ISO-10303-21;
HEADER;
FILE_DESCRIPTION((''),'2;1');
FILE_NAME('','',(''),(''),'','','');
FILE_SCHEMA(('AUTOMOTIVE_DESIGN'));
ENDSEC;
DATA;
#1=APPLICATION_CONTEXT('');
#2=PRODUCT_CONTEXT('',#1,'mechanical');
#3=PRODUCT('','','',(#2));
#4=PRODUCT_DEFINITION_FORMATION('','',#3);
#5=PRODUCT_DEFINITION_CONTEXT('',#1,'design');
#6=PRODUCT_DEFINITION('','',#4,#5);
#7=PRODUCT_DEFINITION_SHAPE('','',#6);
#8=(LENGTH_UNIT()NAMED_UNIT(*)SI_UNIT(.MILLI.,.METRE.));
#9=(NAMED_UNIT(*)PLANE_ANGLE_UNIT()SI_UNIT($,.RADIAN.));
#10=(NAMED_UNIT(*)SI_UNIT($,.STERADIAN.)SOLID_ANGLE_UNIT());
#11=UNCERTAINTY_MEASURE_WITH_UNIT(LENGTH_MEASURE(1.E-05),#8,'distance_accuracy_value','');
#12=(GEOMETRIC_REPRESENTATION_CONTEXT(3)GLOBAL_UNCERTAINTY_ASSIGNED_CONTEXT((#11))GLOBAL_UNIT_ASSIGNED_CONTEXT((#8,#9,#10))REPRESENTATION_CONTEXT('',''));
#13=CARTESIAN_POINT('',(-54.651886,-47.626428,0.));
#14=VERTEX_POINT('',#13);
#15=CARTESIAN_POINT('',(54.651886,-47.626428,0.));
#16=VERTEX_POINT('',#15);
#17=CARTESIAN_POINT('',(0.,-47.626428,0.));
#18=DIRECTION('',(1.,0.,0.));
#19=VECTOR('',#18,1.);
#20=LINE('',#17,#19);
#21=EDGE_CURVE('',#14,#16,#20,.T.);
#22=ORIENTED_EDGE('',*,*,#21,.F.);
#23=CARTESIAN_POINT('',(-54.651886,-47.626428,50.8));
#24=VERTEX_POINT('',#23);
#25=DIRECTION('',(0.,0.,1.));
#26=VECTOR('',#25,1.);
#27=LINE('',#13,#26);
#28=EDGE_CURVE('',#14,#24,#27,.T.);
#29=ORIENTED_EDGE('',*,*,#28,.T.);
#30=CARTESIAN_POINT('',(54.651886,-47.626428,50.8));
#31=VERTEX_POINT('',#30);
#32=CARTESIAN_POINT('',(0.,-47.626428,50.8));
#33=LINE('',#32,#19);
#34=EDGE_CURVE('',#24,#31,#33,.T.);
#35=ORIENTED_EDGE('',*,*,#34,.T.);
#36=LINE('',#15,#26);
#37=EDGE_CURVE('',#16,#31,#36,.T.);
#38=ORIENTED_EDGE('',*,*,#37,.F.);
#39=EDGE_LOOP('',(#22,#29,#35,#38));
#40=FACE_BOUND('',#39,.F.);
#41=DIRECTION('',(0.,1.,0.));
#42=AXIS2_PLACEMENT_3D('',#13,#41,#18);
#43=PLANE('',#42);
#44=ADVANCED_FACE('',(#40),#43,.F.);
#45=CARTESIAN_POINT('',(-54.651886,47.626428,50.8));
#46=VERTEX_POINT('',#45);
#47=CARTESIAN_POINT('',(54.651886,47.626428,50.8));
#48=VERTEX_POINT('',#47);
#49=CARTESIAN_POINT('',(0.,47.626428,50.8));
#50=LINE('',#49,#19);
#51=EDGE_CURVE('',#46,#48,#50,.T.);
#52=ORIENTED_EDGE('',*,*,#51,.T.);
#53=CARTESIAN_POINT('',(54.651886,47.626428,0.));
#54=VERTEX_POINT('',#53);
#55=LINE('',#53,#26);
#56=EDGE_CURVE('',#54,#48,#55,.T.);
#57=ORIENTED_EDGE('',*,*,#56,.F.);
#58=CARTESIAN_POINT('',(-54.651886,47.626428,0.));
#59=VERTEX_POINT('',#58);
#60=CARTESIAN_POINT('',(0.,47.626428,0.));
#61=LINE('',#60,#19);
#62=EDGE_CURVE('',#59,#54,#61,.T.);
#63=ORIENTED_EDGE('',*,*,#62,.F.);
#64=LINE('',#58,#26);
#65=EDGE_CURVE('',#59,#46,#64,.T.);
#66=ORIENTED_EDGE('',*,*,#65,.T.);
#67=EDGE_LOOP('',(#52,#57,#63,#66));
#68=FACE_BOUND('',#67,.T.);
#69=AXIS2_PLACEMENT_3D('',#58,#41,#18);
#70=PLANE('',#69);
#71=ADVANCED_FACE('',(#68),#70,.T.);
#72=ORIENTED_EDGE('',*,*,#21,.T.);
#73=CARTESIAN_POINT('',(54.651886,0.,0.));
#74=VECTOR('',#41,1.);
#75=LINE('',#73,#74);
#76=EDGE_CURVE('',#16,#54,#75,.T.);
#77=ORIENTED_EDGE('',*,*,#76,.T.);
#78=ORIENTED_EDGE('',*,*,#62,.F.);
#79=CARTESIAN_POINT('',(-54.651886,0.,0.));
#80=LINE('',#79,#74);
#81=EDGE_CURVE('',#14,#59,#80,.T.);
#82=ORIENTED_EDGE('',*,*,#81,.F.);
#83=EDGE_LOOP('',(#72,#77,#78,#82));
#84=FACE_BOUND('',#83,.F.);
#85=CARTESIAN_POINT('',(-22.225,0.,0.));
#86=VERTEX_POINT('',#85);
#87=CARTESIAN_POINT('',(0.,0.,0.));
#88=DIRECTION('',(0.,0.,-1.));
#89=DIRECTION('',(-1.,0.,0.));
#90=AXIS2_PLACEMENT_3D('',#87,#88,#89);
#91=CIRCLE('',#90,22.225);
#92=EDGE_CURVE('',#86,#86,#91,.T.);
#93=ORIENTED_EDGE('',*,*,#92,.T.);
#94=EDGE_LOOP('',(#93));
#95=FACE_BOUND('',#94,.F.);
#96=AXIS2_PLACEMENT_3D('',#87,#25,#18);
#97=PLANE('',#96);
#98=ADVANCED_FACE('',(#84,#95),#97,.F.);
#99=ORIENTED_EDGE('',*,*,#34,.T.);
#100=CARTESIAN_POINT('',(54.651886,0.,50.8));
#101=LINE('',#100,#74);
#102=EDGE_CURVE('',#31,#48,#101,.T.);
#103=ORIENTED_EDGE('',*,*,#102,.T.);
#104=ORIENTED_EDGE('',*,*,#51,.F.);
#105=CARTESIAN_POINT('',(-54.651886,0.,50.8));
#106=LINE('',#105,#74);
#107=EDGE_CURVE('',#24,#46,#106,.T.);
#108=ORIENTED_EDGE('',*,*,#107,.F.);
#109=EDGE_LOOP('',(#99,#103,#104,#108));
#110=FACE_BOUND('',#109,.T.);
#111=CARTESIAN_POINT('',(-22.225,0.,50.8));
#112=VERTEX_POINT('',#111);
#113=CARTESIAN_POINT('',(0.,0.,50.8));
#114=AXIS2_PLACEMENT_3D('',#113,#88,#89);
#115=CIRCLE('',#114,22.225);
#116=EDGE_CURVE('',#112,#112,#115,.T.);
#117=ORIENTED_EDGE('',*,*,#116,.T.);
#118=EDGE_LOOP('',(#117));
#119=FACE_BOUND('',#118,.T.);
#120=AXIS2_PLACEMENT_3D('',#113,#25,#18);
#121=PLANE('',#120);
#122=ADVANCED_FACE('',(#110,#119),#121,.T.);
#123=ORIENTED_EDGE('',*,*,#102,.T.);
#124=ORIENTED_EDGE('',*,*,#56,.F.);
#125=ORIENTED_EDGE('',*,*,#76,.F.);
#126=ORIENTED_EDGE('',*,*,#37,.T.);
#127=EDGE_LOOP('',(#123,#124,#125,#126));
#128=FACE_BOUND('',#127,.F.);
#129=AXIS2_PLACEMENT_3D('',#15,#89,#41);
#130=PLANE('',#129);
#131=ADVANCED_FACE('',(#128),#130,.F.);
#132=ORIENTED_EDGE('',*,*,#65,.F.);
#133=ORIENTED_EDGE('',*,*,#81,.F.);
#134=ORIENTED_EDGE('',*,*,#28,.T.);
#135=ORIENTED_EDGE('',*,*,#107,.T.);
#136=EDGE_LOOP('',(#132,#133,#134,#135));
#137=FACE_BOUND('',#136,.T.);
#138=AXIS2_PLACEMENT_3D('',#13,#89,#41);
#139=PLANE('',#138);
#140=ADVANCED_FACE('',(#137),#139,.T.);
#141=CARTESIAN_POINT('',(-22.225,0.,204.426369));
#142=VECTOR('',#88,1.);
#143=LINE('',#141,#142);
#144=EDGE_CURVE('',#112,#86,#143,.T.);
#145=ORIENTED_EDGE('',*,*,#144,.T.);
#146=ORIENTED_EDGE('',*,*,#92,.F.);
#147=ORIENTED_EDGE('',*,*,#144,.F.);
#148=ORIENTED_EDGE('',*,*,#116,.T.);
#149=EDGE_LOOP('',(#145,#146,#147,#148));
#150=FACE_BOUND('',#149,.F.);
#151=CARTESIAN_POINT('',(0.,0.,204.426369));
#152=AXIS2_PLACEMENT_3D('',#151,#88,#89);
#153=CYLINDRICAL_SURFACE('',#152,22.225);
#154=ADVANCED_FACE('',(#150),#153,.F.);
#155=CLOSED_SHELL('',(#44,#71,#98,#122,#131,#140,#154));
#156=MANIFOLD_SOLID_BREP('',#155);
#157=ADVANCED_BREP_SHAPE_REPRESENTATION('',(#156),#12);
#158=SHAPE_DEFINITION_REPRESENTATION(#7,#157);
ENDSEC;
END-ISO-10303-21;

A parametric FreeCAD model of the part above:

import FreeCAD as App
import Part
import Sketcher
Q = App.Units.Quantity


def add_polygon(sketch, points):
    """Adds a closed chain of lines whose ends are joined by coincident constraints."""
    first, n = sketch.GeometryCount, len(points)
    for a, b in zip(points, points[1:] + points[:1]):
        sketch.addGeometry(Part.LineSegment(App.Vector(*a, 0), App.Vector(*b, 0)), False)
    for i in range(n):
        sketch.addConstraint(Sketcher.Constraint("Coincident", first + i, 2, first + (i + 1) % n, 1))

doc = App.newDocument("Part")
body = doc.addObject("PartDesign::Body", "Body")

sketch1 = body.newObject("Sketcher::SketchObject", "Sketch")
sketch1.AttachmentSupport = (doc.getObject("XY_Plane"), [""])
sketch1.MapMode = "FlatFace"
add_polygon(sketch1, [(-54.651886, 47.626428), (-54.651886, -47.626428), (54.651886, -47.626428), (54.651886, 47.626428)])
sketch1.addConstraint([
    Sketcher.Constraint("Vertical", 0),
    Sketcher.Constraint("Horizontal", 1),
    Sketcher.Constraint("Vertical", 2),
    Sketcher.Constraint("Horizontal", 3),
    Sketcher.Constraint("Symmetric", 0, 2, 2, 2, -1, 1),
    Sketcher.Constraint("DistanceX", 1, 1, 1, 2, Q("109.303772 mm")),
    Sketcher.Constraint("DistanceY", 0, 2, 0, 1, Q("95.252857 mm")),
])
pad1 = body.newObject("PartDesign::Pad", "Pad")
pad1.Profile = sketch1
pad1.Length = Q("2 in")

sketch2 = body.newObject("Sketcher::SketchObject", "Sketch001")
sketch2.AttachmentSupport = (doc.getObject("XY_Plane"), [""])
sketch2.MapMode = "FlatFace"
sketch2.AttachmentOffset = App.Placement(App.Vector(0, 0, 2 * 25.4), App.Rotation())
sketch2.addGeometry(Part.Circle(App.Vector(0, 0, 0), App.Vector(0, 0, 1), 22.225), False)
sketch2.addConstraint([
    Sketcher.Constraint("Coincident", 0, 3, -1, 1),
    Sketcher.Constraint("Diameter", 0, Q("1.75 in")),
])
doc.recompute()
hole = body.newObject("PartDesign::Hole", "Hole")
hole.Profile = sketch2
hole.ThreadType = "None"
hole.Diameter = Q("1.75 in")
hole.DepthType = "ThroughAll"

doc.recompute()
